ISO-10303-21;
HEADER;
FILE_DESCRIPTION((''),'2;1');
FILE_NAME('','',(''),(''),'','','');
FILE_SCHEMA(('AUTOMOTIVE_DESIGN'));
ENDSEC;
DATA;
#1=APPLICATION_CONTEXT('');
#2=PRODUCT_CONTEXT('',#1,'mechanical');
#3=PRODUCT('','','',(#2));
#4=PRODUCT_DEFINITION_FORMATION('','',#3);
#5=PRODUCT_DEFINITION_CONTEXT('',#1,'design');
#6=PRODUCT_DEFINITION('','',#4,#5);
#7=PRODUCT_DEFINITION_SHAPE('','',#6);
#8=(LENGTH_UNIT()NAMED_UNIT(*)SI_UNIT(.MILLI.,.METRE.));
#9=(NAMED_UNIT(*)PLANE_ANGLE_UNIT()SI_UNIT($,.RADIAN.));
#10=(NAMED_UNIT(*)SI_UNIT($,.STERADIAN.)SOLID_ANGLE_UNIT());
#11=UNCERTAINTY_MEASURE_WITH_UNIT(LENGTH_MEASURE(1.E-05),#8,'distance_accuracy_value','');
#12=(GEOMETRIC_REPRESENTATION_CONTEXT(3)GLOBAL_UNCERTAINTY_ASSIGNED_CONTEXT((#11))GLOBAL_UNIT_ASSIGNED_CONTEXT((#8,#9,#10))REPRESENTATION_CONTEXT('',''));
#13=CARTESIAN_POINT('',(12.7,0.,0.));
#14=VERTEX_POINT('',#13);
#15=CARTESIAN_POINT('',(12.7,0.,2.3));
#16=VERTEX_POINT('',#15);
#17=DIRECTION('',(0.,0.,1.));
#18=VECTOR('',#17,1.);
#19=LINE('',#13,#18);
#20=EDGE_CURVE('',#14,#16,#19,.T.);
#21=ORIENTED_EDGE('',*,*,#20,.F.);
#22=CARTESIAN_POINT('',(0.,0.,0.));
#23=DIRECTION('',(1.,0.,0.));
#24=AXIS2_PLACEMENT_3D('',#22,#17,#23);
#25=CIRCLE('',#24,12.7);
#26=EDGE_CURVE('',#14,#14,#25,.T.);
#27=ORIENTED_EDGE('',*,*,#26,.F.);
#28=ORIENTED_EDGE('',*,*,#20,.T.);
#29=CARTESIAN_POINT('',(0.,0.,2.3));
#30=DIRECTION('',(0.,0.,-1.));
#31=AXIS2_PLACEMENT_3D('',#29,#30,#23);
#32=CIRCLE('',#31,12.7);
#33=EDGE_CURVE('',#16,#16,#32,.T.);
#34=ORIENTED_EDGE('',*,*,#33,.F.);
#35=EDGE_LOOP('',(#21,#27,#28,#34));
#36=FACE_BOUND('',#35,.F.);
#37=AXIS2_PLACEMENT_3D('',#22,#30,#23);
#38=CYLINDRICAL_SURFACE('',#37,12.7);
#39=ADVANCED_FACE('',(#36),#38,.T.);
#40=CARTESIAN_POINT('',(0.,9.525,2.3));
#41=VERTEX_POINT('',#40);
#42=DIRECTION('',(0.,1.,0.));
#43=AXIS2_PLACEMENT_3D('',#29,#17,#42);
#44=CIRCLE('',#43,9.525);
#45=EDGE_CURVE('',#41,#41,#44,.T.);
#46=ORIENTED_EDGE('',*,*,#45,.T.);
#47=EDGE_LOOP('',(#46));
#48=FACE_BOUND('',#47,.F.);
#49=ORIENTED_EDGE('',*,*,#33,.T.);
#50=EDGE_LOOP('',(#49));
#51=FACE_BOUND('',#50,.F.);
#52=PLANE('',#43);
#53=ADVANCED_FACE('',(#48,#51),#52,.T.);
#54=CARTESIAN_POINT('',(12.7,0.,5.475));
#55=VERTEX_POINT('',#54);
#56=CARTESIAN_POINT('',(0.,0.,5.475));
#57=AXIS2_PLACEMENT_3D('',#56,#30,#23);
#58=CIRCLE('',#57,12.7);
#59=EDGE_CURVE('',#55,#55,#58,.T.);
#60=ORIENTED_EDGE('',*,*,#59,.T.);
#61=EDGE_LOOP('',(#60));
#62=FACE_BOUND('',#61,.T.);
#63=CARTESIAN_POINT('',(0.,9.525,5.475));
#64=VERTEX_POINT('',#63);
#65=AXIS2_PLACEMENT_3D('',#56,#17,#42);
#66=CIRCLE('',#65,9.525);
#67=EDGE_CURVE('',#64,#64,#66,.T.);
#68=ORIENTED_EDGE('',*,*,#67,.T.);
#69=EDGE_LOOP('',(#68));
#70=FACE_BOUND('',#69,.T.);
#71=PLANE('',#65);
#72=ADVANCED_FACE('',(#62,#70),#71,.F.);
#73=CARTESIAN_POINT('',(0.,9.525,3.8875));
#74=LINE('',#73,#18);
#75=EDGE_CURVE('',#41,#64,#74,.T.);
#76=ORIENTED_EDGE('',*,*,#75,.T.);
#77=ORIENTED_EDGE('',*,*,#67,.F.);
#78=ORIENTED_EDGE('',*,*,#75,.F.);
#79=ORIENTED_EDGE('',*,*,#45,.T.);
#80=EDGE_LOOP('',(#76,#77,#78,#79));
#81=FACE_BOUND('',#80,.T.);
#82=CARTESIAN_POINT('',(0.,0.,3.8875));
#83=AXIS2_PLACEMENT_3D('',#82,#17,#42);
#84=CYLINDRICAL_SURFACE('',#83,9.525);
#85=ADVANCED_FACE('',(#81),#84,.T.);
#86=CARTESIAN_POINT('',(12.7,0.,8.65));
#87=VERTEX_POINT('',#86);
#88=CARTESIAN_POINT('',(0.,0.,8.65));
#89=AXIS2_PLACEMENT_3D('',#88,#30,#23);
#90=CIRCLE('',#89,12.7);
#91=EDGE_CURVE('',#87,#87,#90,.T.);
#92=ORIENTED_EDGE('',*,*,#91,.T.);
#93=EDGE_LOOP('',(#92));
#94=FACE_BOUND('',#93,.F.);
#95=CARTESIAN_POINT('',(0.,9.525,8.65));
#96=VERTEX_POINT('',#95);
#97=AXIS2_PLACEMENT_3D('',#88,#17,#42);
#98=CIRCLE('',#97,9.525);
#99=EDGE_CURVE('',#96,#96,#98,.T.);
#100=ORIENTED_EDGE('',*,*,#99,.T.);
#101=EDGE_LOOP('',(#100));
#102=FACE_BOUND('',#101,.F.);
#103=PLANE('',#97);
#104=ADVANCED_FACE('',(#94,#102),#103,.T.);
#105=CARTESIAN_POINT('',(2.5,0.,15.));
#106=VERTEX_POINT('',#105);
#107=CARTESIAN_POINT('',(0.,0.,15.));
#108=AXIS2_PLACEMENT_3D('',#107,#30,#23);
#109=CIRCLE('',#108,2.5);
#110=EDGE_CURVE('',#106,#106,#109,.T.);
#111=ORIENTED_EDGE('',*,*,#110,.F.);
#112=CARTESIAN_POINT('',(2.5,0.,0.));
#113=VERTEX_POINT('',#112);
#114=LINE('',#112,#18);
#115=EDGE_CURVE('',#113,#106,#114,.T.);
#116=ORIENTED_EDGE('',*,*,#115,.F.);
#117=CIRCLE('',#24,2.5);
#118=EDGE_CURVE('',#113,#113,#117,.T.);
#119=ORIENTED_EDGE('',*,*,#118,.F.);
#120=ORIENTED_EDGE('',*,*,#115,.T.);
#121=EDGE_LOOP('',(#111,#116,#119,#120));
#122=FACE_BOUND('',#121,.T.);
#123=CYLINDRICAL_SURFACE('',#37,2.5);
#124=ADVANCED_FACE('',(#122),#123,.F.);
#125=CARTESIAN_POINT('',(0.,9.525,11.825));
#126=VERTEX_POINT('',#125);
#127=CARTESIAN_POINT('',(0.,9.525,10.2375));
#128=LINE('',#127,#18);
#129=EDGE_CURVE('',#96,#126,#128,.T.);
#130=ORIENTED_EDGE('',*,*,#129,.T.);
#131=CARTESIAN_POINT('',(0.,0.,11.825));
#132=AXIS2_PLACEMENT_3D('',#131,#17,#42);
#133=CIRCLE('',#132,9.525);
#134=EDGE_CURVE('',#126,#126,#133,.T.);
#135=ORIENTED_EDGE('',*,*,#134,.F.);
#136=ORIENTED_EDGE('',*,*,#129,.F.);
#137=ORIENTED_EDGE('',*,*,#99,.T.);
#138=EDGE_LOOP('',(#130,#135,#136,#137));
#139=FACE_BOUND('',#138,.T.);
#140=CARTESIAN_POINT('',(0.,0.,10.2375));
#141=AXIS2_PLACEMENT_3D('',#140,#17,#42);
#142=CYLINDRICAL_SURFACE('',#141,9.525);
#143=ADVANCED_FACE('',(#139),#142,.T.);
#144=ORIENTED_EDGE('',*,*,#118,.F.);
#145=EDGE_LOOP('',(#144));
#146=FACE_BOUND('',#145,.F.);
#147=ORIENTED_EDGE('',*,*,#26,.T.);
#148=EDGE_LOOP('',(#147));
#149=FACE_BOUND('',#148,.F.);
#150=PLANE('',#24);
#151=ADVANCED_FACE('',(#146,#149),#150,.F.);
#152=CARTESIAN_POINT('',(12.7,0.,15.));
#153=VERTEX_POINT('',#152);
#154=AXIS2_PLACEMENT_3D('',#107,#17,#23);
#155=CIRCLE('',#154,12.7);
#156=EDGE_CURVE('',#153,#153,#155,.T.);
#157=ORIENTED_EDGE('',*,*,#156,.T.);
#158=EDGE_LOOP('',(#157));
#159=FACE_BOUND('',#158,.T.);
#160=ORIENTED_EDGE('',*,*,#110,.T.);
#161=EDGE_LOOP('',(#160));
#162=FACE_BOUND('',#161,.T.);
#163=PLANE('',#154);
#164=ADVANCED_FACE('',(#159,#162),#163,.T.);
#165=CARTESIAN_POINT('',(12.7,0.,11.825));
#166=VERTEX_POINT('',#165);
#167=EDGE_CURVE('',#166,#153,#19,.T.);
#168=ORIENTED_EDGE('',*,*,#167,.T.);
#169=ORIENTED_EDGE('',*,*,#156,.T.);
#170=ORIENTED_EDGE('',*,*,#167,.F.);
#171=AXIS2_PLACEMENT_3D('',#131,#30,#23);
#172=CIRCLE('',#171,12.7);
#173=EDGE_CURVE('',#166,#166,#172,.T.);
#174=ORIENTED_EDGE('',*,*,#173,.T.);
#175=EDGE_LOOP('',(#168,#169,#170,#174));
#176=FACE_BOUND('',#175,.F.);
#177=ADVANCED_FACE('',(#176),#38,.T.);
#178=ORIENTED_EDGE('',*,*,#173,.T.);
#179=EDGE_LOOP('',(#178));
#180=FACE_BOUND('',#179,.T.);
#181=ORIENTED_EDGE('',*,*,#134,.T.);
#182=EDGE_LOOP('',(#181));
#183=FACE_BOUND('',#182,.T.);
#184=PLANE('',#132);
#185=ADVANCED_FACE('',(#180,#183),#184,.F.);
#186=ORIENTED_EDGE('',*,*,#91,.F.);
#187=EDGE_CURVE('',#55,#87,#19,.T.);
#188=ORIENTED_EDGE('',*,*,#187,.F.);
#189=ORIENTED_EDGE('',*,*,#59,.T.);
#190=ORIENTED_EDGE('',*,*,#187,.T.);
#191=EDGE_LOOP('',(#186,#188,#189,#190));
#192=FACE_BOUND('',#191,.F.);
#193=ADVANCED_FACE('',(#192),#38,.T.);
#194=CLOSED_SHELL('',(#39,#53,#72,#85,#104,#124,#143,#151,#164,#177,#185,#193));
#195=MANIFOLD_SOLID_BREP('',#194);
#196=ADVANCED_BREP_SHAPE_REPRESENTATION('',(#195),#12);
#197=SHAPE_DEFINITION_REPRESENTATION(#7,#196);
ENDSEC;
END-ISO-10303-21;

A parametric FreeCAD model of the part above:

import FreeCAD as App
import Part
import Sketcher

V = App.Vector
Q = App.Units.Quantity


def add_polygon(sketch, points):
    """Adds a closed chain of lines whose ends are joined by coincident constraints."""
    first, n = sketch.GeometryCount, len(points)
    for a, b in zip(points, points[1:] + points[:1]):
        sketch.addGeometry(Part.LineSegment(App.Vector(*a, 0), App.Vector(*b, 0)), False)
    for i in range(n):
        sketch.addConstraint(Sketcher.Constraint("Coincident", first + i, 2, first + (i + 1) % n, 1))

doc = App.newDocument("Part")
body = doc.addObject("PartDesign::Body", "Body")

# Sketch on XY plane
sketch1 = body.newObject("Sketcher::SketchObject", "Sketch")
sketch1.AttachmentSupport = (doc.getObject("XY_Plane"), [""])
sketch1.MapMode = "FlatFace"
sketch1.addGeometry(Part.Circle(V(0, 0, 0), V(0, 0, 1), 13), False)
sketch1.addConstraint([
    Sketcher.Constraint("Coincident", 0, 3, -1, 1),
    Sketcher.Constraint("Diameter", 0, Q("25.4 mm")),
])
pad1 = body.newObject("PartDesign::Pad", "Pad")
pad1.Profile = sketch1
pad1.Length = 15

# Sketch on YZ plane
sketch2 = body.newObject("Sketcher::SketchObject", "Sketch001")
sketch2.AttachmentSupport = (doc.getObject("YZ_Plane"), [""])
sketch2.MapMode = "FlatFace"
add_polygon(sketch2, [(9.5, 5.5), (9.5, 2.3), (12.7, 2.3), (12.7, 5.5)])  # lines 0-3
add_polygon(sketch2, [(9.5, 11.8), (9.5, 8.7), (12.7, 8.7), (12.7, 11.8)])  # lines 4-7
sketch2.addConstraint([
    Sketcher.Constraint("Vertical", 0),
    Sketcher.Constraint("Horizontal", 1),
    Sketcher.Constraint("Vertical", 2),
    Sketcher.Constraint("Horizontal", 3),
    Sketcher.Constraint("Vertical", 4),
    Sketcher.Constraint("Horizontal", 5),
    Sketcher.Constraint("Vertical", 6),
    Sketcher.Constraint("Horizontal", 7),
    Sketcher.Constraint("Vertical", 3, 2, 4, 2),
    Sketcher.Constraint("Vertical", 2, 2, 5, 2),
    Sketcher.Constraint("Equal", 7, 0),
    Sketcher.Constraint("Equal", 2, 4),
    Sketcher.Constraint("DistanceY", -1, 1, 0, 2, Q("2.3 mm")),
    Sketcher.Constraint("DistanceX", -1, 1, 1, 2, Q("12.7 mm")),
    Sketcher.Constraint("DistanceX", 1, 1, 1, 2, Q("3.175 mm")),
    Sketcher.Constraint("DistanceY", -1, 1, 4, 2, Q("8.65 mm")),
])
groove = body.newObject("PartDesign::Groove", "Groove")
groove.Profile = sketch2
groove.ReferenceAxis = (sketch2, ["V_Axis"])
groove.Angle = 360

# Sketch on XY plane
sketch3 = body.newObject("Sketcher::SketchObject", "Sketch002")
sketch3.AttachmentSupport = (doc.getObject("XY_Plane"), [""])
sketch3.MapMode = "FlatFace"
sketch3.addGeometry(Part.Circle(V(0, 0, 0), V(0, 0, 1), 2.5), False)
sketch3.addConstraint([
    Sketcher.Constraint("Coincident", 0, 3, -1, 1),
    Sketcher.Constraint("Diameter", 0, Q("5 mm")),
])
pocket1 = body.newObject("PartDesign::Pocket", "Pocket")
pocket1.Profile = sketch3
pocket1.Length = 25.4
pocket1.Reversed = True

doc.recompute()
